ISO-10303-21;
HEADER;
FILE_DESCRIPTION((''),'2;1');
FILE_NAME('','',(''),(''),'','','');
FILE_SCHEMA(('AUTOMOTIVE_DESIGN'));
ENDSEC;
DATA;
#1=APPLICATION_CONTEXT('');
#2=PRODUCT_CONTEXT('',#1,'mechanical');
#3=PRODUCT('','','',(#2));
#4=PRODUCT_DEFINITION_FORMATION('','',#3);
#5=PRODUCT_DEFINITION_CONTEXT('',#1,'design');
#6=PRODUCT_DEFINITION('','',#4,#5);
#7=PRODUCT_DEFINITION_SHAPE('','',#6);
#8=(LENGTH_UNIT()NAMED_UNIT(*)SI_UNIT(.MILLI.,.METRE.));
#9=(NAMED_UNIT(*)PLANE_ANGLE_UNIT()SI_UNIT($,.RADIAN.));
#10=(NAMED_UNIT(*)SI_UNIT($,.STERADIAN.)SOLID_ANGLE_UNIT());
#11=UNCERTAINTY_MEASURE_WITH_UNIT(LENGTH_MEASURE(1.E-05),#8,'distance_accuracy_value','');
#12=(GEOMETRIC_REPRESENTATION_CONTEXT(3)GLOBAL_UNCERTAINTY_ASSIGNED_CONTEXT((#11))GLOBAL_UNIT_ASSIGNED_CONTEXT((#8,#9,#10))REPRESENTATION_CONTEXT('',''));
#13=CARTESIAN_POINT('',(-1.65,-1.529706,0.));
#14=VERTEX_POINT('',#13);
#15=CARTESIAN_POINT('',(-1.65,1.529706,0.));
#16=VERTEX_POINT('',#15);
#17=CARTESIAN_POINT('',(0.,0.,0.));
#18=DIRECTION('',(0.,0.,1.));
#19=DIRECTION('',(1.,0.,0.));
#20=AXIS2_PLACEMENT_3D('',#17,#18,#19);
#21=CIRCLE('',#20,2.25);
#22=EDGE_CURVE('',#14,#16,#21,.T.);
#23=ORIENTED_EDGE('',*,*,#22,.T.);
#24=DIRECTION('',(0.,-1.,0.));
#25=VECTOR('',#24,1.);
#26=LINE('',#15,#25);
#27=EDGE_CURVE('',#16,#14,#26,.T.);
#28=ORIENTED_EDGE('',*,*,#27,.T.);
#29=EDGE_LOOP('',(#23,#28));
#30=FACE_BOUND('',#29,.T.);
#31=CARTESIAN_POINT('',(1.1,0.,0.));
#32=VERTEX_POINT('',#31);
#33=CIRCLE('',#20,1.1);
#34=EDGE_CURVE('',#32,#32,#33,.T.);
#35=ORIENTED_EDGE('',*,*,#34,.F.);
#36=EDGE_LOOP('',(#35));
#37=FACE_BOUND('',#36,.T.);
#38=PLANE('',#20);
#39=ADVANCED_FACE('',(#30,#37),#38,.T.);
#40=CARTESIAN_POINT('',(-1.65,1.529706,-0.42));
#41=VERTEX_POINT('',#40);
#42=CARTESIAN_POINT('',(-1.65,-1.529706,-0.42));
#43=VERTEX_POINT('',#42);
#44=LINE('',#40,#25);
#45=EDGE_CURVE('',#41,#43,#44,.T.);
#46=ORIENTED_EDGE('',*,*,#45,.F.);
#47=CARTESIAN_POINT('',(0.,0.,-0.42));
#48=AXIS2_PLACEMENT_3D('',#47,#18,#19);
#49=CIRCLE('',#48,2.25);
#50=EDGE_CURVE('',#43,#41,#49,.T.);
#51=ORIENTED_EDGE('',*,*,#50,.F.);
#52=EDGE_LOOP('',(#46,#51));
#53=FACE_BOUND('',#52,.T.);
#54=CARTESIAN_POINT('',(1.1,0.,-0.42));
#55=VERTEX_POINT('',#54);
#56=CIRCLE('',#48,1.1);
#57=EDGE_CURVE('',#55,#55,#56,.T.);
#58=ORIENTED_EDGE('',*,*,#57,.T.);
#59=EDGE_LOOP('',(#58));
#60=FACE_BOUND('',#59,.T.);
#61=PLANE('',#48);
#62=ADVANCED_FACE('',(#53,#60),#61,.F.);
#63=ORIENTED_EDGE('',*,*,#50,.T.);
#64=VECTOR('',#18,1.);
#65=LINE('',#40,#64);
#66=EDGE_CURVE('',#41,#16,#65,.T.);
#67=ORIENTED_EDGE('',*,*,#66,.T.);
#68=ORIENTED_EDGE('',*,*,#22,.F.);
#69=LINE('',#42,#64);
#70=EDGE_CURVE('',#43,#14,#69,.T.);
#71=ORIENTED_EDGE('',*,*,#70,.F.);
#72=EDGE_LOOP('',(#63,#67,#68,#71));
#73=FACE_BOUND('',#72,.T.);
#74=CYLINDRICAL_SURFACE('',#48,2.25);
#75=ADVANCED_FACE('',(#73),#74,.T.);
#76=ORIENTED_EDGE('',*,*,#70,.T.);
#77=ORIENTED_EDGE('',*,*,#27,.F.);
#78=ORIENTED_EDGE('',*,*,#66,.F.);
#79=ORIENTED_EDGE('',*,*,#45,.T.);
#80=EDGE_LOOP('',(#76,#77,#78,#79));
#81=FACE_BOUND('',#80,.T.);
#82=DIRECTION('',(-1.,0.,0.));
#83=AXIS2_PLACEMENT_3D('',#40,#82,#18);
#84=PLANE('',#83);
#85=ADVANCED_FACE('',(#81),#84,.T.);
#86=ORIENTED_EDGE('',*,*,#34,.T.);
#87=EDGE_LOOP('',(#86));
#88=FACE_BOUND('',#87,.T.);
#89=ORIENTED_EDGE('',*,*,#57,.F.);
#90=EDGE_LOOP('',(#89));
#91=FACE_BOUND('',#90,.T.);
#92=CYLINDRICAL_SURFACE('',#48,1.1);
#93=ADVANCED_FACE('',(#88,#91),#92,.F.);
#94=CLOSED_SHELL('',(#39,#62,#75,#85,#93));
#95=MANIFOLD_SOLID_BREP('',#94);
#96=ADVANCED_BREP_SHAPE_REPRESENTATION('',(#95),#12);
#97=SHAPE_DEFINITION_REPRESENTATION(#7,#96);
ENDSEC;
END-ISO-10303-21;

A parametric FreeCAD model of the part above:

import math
import FreeCAD as App
import Part
import Sketcher
from FreeCAD import Vector

doc = App.newDocument("Part")
body = doc.addObject("PartDesign::Body", "Body")

# Sketch on XY plane
sketch1 = body.newObject("Sketcher::SketchObject", "Sketch")
sketch1.AttachmentSupport = (doc.getObject("XY_Plane"), [""])
sketch1.MapMode = "FlatFace"
sketch1.addGeometry([
    Part.LineSegment(Vector(-1.6, 1.5, 0), Vector(-1.6, -1.5, 0)),
    Part.ArcOfCircle(Part.Circle(Vector(0, 0, 0), Vector(0, 0, 1), 2.2), math.radians(-137), math.radians(137)),
    Part.Circle(Vector(0, 0, 0), Vector(0, 0, 1), 1.1),
], False)
sketch1.addConstraint([
    Sketcher.Constraint("Coincident", 0, 1, 1, 2),
    Sketcher.Constraint("Coincident", 1, 1, 0, 2),
    Sketcher.Constraint("Vertical", 0),
    Sketcher.Constraint("Coincident", 1, 3, -1, 1),
    Sketcher.Constraint("Coincident", 2, 3, -1, 1),
    Sketcher.Constraint("Diameter", 2, 2.2),
    Sketcher.Constraint("Radius", 1, 2.25),
    Sketcher.Constraint("DistanceX", 0, 1, -1, 1, 1.65),
])
pad1 = body.newObject("PartDesign::Pad", "Pad")
pad1.Profile = sketch1
pad1.Length = 0.42
pad1.Reversed = True

doc.recompute()
